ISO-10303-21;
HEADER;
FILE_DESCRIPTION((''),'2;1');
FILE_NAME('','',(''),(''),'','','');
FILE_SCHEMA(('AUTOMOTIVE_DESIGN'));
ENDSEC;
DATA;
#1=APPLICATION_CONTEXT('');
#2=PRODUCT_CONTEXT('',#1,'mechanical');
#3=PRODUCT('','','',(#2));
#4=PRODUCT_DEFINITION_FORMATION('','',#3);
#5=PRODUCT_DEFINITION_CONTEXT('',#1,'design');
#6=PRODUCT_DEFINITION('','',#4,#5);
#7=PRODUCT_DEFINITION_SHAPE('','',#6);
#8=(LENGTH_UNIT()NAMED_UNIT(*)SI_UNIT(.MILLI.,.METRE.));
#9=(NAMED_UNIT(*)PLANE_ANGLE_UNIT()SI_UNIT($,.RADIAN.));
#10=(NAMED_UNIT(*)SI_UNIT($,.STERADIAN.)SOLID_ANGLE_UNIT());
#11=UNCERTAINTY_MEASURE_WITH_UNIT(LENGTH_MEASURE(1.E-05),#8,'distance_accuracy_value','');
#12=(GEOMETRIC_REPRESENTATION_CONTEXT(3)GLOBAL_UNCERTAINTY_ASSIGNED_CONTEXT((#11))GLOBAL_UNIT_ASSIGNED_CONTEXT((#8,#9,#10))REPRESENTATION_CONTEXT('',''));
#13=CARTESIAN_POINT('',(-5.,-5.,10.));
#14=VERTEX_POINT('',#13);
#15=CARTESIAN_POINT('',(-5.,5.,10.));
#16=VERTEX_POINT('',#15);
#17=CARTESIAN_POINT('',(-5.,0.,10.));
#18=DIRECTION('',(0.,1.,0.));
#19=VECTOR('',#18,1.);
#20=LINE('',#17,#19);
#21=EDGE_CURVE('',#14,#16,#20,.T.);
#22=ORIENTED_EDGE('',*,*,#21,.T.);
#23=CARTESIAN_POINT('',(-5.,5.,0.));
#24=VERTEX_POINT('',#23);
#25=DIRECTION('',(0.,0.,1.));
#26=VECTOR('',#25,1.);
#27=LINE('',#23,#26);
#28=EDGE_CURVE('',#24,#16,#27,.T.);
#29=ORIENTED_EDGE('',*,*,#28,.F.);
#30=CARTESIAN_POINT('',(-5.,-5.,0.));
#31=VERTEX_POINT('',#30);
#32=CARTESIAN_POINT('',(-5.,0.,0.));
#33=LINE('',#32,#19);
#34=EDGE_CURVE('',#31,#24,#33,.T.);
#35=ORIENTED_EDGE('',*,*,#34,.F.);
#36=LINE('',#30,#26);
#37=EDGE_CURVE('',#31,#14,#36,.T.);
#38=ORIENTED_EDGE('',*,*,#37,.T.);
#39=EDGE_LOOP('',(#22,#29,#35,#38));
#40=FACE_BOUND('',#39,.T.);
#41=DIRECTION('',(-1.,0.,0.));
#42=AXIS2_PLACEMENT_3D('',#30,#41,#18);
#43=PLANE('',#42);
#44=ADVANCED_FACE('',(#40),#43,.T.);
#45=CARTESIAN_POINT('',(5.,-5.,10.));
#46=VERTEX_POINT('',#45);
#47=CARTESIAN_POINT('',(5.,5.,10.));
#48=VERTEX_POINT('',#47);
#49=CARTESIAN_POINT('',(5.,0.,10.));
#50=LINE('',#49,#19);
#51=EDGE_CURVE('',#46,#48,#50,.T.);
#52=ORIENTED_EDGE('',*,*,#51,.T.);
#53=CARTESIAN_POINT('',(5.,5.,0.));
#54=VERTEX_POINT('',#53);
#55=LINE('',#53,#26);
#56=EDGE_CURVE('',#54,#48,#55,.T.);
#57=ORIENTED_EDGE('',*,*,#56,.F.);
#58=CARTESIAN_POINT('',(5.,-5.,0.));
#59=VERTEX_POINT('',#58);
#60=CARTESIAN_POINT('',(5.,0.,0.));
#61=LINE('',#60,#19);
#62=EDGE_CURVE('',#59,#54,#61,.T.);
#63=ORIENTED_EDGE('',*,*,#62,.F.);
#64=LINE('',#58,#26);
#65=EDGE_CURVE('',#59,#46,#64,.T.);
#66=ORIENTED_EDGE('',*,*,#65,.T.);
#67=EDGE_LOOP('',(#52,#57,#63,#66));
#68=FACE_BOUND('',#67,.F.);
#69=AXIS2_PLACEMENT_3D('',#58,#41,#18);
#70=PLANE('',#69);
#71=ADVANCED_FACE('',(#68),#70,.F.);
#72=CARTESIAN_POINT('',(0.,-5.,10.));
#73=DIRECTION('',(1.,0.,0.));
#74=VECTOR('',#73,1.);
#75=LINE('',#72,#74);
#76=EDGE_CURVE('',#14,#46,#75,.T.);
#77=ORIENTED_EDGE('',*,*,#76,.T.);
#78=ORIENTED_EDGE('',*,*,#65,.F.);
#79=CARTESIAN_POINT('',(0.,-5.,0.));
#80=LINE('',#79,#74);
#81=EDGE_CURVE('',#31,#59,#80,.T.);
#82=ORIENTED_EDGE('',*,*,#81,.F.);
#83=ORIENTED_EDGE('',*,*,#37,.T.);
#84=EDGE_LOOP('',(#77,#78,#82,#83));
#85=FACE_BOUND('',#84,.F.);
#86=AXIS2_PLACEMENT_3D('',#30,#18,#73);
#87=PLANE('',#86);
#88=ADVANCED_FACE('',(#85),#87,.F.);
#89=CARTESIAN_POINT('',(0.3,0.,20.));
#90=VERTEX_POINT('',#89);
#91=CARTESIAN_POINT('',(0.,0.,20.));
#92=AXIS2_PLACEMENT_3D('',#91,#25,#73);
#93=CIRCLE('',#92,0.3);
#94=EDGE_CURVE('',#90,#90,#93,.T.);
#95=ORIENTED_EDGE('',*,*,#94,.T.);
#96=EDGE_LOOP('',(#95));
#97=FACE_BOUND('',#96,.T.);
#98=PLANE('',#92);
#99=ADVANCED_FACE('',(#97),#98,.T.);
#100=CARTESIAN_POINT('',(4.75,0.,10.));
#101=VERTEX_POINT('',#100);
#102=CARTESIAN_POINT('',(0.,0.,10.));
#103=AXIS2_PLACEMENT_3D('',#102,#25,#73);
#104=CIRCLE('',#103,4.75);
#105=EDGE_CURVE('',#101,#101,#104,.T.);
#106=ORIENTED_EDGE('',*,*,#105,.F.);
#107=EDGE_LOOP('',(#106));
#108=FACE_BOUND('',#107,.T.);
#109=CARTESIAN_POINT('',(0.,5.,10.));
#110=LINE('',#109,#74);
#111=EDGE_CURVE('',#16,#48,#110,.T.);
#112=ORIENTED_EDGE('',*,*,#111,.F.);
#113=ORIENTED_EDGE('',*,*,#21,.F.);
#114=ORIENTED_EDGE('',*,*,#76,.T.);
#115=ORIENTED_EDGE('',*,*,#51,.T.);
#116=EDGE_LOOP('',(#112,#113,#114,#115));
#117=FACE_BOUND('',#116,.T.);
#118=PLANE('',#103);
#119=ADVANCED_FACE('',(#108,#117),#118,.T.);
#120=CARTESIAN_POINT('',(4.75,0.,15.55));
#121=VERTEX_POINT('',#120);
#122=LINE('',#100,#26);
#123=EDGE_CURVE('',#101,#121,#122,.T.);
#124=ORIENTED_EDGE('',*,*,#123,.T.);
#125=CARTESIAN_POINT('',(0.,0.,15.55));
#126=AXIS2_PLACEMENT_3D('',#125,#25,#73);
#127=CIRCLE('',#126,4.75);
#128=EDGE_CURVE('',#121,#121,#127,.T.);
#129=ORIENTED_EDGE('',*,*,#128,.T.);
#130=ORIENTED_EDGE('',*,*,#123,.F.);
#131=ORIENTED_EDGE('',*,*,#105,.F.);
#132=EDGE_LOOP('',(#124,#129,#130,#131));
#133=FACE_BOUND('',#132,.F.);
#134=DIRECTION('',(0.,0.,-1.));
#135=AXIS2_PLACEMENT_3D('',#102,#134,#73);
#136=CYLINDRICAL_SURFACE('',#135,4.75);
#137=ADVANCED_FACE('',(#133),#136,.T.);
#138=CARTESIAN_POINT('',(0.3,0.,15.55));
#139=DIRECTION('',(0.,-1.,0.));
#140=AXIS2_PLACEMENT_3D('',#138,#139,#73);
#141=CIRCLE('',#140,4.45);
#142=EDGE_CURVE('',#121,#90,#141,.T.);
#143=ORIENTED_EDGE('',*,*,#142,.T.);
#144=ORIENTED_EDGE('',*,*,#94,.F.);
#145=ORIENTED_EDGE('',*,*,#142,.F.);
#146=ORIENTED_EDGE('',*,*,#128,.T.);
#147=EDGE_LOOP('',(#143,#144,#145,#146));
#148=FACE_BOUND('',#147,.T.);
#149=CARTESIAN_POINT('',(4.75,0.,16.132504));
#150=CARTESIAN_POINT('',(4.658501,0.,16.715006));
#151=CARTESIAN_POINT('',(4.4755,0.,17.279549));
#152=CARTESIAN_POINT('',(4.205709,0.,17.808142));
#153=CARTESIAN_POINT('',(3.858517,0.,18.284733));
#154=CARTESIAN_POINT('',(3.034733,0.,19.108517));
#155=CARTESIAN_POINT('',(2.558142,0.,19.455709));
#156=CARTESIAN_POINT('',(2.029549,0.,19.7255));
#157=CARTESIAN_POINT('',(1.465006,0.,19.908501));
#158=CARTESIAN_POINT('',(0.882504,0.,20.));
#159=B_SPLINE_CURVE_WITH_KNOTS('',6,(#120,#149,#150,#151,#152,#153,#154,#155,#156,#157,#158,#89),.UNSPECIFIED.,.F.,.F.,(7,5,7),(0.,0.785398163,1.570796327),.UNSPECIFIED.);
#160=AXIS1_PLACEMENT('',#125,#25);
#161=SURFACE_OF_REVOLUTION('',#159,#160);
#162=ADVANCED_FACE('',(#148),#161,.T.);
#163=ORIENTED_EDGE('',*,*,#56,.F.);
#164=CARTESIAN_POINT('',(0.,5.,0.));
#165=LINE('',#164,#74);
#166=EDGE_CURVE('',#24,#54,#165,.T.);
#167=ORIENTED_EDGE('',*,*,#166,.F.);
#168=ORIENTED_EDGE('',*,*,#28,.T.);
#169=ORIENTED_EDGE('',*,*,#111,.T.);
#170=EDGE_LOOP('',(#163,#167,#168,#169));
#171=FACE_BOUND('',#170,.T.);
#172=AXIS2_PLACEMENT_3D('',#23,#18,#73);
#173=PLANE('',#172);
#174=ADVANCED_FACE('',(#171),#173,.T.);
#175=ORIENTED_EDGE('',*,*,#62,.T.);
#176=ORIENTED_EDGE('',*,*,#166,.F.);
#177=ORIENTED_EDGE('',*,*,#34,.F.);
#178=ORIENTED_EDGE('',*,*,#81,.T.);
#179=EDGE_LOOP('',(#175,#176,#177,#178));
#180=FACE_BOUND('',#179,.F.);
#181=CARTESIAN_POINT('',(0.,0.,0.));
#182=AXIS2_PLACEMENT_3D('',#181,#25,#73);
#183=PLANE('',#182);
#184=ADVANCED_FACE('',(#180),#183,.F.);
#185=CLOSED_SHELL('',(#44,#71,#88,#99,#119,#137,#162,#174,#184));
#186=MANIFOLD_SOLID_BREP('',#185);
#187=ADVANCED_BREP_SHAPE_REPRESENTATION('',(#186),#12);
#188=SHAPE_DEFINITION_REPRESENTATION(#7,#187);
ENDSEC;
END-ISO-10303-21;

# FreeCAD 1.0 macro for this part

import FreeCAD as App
import Part
import Sketcher
from FreeCAD import Vector


def edges_at(feature, points):
    """Names of the edges that pass closest to the given points."""
    edges = feature.Shape.Edges
    near = lambda p: min(range(len(edges)), key=lambda i: edges[i].distToShape(Part.Vertex(*p))[0])
    return sorted({f"Edge{near(p) + 1}" for p in points})


def add_polygon(sketch, points):
    """Adds a closed chain of lines whose ends are joined by coincident constraints."""
    first, n = sketch.GeometryCount, len(points)
    for a, b in zip(points, points[1:] + points[:1]):
        sketch.addGeometry(Part.LineSegment(App.Vector(*a, 0), App.Vector(*b, 0)), False)
    for i in range(n):
        sketch.addConstraint(Sketcher.Constraint("Coincident", first + i, 2, first + (i + 1) % n, 1))

doc = App.newDocument("Part")
params = doc.addObject("Spreadsheet::Sheet", "Params")
for row, (alias, value) in enumerate([
    ("sketch1_width", "10 mm"),
    ("pad1_length", "10 mm"),
    ("sketch2_diameter", "9.5 mm"),
    ("pad2_length", "10 mm"),
    ("fillet_radius", "4.45 mm"),
], start=1):
    params.set(f"A{row}", alias)
    params.set(f"B{row}", "=" + value)
    params.setAlias(f"B{row}", alias)

body = doc.addObject("PartDesign::Body", "Body")

sketch1 = body.newObject("Sketcher::SketchObject", "Sketch")
sketch1.AttachmentSupport = (doc.getObject("XY_Plane"), [""])
sketch1.MapMode = "FlatFace"
add_polygon(sketch1, [(-5, 5), (-5, -5), (5, -5), (5, 5)])
sketch1.addConstraint(Sketcher.Constraint("Vertical", 0))
sketch1.addConstraint(Sketcher.Constraint("Horizontal", 1))
sketch1.addConstraint(Sketcher.Constraint("Vertical", 2))
sketch1.addConstraint(Sketcher.Constraint("Horizontal", 3))
sketch1.addConstraint(Sketcher.Constraint("Symmetric", 0, 2, 2, 2, -1, 1))
sketch1.addConstraint(Sketcher.Constraint("Equal", 3, 0))
sketch1.addConstraint(Sketcher.Constraint("DistanceX", 1, 1, 1, 2, 10.0))
sketch1.setExpression("Constraints[10]", "Params.sketch1_width")
pad1 = body.newObject("PartDesign::Pad", "Pad")
pad1.Profile = sketch1
pad1.setExpression("Length", "Params.pad1_length")

sketch2 = body.newObject("Sketcher::SketchObject", "Sketch001")
sketch2.AttachmentSupport = (doc.getObject("XY_Plane"), [""])
sketch2.MapMode = "FlatFace"
sketch2.AttachmentOffset = App.Placement(Vector(0, 0, 10), App.Rotation())
sketch2.addGeometry(Part.Circle(Vector(0, 0, 0), Vector(0, 0, 1), 4.8), False)
sketch2.addConstraint(Sketcher.Constraint("Coincident", 0, 3, -1, 1))
sketch2.addConstraint(Sketcher.Constraint("Diameter", 0, 9.5))
sketch2.setExpression("Constraints[1]", "Params.sketch2_diameter")
pad2 = body.newObject("PartDesign::Pad", "Pad001")
pad2.Profile = sketch2
pad2.setExpression("Length", "Params.pad2_length")
doc.recompute()

fillet = body.newObject("PartDesign::Fillet", "Fillet")
fillet.Base = (pad2, edges_at(pad2, [(-4.75, 0, 20)]))
fillet.setExpression("Radius", "Params.fillet_radius")

doc.recompute()
